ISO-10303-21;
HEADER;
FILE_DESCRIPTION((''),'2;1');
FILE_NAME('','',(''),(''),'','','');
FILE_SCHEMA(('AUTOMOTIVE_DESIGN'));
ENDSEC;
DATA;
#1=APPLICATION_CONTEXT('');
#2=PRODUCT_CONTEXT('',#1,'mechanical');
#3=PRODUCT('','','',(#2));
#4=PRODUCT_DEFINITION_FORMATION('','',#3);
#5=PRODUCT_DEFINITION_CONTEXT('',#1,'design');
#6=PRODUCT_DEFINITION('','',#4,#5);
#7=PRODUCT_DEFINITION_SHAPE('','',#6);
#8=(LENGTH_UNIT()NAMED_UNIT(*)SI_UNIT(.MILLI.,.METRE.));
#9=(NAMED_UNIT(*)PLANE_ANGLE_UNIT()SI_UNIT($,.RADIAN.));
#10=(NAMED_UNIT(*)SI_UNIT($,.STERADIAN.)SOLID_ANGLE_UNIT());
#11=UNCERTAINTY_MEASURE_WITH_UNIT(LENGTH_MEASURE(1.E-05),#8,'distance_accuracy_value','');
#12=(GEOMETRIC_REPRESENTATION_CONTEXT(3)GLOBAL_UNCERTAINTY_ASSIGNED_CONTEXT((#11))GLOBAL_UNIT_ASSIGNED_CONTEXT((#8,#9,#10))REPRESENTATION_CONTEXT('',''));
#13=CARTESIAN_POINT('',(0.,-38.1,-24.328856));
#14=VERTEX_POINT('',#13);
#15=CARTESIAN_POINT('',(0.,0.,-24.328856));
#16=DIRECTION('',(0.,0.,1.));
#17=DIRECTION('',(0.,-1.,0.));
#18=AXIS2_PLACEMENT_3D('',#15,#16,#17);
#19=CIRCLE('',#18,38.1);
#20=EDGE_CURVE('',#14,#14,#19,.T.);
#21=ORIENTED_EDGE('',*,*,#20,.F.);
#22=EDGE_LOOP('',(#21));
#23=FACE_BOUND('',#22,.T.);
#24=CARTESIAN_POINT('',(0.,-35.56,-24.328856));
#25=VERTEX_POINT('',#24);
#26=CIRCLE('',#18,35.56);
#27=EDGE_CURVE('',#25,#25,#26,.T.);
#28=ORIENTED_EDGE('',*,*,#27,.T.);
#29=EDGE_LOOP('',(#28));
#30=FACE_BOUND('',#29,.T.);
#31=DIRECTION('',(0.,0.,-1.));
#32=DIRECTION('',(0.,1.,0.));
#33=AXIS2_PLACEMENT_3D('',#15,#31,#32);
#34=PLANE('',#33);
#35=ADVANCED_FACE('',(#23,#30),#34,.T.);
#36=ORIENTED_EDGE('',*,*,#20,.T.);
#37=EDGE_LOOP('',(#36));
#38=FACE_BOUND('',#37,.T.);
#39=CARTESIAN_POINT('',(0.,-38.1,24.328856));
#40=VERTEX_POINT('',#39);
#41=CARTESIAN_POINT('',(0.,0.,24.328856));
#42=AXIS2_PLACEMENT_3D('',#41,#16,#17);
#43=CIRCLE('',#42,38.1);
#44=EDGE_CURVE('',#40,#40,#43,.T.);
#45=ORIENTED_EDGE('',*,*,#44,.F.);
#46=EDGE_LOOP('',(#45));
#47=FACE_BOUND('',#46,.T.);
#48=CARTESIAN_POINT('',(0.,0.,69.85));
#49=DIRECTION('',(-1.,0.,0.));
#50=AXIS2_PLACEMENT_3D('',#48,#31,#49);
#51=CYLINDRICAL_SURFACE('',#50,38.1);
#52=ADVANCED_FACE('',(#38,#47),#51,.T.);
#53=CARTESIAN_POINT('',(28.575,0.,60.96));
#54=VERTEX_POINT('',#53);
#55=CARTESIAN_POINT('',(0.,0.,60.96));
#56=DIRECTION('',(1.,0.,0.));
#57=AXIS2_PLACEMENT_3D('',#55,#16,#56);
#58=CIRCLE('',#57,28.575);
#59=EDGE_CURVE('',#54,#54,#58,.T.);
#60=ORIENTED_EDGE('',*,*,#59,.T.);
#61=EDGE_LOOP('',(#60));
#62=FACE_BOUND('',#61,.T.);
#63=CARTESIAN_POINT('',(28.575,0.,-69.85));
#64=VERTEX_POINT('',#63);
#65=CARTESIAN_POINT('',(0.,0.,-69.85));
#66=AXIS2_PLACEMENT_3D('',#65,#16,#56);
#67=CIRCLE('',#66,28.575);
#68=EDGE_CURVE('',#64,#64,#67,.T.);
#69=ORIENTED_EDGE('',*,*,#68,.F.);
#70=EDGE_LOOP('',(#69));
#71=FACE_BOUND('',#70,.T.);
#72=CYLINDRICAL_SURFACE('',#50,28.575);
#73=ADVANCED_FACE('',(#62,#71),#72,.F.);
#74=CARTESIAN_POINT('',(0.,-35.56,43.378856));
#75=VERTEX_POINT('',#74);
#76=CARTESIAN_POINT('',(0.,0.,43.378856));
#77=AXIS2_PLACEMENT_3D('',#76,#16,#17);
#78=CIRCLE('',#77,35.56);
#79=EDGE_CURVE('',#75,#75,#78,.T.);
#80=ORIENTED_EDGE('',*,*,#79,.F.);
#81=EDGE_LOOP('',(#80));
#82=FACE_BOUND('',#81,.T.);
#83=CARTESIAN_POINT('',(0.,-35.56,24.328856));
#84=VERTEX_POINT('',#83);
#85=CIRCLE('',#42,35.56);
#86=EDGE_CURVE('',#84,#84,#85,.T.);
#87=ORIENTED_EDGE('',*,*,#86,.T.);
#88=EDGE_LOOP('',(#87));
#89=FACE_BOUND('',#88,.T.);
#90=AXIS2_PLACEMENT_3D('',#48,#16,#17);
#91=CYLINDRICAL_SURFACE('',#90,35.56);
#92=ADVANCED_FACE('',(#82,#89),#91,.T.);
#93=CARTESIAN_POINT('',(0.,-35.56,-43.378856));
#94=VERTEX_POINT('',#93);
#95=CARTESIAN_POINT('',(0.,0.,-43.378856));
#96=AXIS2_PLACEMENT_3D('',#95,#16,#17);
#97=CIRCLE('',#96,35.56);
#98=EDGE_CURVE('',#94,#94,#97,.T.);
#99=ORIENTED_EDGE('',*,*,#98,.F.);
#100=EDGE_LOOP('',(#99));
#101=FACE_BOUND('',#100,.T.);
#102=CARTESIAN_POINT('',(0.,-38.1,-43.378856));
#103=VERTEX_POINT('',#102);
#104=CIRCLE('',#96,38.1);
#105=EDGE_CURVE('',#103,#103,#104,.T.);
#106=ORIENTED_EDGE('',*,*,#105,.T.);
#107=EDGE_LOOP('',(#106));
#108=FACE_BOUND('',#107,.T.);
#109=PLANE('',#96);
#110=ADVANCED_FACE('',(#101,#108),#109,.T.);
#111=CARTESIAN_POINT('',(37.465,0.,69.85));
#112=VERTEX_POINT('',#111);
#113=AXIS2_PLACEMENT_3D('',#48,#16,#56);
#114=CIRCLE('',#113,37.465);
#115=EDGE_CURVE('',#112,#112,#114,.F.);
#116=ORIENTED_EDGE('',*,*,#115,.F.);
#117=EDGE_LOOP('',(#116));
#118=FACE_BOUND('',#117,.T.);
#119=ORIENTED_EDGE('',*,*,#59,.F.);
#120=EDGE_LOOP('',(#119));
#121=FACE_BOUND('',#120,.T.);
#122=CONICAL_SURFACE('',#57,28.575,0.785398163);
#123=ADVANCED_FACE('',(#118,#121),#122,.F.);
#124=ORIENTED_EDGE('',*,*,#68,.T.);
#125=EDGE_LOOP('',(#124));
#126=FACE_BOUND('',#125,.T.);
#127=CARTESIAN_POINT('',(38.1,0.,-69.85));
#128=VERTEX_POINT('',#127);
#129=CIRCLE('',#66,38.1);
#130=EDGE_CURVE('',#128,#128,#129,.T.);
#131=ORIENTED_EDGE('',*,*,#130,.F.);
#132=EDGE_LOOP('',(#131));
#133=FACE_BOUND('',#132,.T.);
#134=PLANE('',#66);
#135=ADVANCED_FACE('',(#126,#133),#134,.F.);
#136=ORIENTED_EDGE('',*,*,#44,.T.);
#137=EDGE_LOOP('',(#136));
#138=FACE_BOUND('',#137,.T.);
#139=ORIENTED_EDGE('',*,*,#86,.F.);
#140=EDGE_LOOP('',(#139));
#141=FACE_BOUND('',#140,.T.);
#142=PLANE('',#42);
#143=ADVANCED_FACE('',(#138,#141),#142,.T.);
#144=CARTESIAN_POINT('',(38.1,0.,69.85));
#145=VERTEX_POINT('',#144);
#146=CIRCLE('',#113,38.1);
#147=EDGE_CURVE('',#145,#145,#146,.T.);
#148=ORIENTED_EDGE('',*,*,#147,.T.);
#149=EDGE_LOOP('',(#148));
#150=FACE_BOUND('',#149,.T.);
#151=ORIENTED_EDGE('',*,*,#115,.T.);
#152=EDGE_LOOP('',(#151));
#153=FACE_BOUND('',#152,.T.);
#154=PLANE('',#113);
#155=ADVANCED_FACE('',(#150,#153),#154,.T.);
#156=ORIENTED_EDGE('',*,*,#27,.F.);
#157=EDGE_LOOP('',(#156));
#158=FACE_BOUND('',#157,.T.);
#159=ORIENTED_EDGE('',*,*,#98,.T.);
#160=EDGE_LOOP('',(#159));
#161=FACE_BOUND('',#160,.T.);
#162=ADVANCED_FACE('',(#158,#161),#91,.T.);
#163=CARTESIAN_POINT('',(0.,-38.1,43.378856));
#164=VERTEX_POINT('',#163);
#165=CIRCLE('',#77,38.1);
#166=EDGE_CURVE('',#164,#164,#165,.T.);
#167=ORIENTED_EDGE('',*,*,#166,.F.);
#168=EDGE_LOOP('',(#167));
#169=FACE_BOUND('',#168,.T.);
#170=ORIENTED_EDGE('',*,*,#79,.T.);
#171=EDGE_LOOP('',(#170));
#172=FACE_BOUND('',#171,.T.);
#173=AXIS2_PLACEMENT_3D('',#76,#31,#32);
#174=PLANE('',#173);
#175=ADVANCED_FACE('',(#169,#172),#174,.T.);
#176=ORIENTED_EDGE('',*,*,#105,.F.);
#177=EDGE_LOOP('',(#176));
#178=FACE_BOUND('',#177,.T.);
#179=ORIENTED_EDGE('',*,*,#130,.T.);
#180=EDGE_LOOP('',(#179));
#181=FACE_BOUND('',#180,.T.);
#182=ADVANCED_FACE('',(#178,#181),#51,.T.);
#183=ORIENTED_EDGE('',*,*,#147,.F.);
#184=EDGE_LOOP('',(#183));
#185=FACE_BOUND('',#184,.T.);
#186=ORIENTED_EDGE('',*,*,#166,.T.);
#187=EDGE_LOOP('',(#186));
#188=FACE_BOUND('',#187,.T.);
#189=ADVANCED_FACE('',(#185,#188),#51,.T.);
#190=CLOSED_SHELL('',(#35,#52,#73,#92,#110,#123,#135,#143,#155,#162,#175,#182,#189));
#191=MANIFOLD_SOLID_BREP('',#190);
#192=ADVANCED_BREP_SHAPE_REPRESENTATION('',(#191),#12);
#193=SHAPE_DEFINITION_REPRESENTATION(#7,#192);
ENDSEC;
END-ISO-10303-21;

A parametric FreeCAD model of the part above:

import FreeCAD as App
import Part
import Sketcher
from FreeCAD import Vector
Q = App.Units.Quantity


def edges_at(feature, points):
    """Names of the edges that pass closest to the given points."""
    edges = feature.Shape.Edges
    near = lambda p: min(range(len(edges)), key=lambda i: edges[i].distToShape(Part.Vertex(*p))[0])
    return sorted({f"Edge{near(p) + 1}" for p in points})

doc = App.newDocument("Part")
body = doc.addObject("PartDesign::Body", "Body")

sketch1 = body.newObject("Sketcher::SketchObject", "Sketch")
sketch1.AttachmentSupport = (doc.getObject("XY_Plane"), [""])
sketch1.MapMode = "FlatFace"
sketch1.addGeometry([
    Part.Circle(Vector(0, 0, 0), Vector(0, 0, 1), 38),
    Part.Circle(Vector(0, 0, 0), Vector(0, 0, 1), 29),
], False)
sketch1.addConstraint([
    Sketcher.Constraint("Coincident", 0, 3, -1, 1),
    Sketcher.Constraint("Coincident", 1, 3, -1, 1),
    Sketcher.Constraint("Diameter", 0, Q("3 in")),
    Sketcher.Constraint("Diameter", 1, Q("2.25 in")),
])
pad1 = body.newObject("PartDesign::Pad", "Pad")
pad1.Profile = sketch1
pad1.Length = Q("5.5 in")
pad1.Midplane = True

sketch2 = body.newObject("Sketcher::SketchObject", "Sketch001")
sketch2.AttachmentSupport = (doc.getObject("YZ_Plane"), [""])
sketch2.MapMode = "FlatFace"
sketch2.addGeometry([
    Part.LineSegment(Vector(38.1, 43.4, 0), Vector(35.6, 43.4, 0)),
    Part.LineSegment(Vector(35.6, 43.4, 0), Vector(35.6, 24.3, 0)),
    Part.LineSegment(Vector(35.6, 24.3, 0), Vector(38.1, 24.3, 0)),
    Part.LineSegment(Vector(38.1, 24.3, 0), Vector(38.1, 43.4, 0)),
    Part.LineSegment(Vector(38.1, -24.3, 0), Vector(35.6, -24.3, 0)),
    Part.LineSegment(Vector(35.6, -24.3, 0), Vector(35.6, -43.4, 0)),
    Part.LineSegment(Vector(35.6, -43.4, 0), Vector(38.1, -43.4, 0)),
    Part.LineSegment(Vector(38.1, -43.4, 0), Vector(38.1, -24.3, 0)),
], False)
sketch2.addConstraint([
    Sketcher.Constraint("Coincident", 0, 2, 1, 1),
    Sketcher.Constraint("Coincident", 1, 2, 2, 1),
    Sketcher.Constraint("Coincident", 2, 2, 3, 1),
    Sketcher.Constraint("Coincident", 3, 2, 0, 1),
    Sketcher.Constraint("Coincident", 4, 2, 5, 1),
    Sketcher.Constraint("Coincident", 5, 2, 6, 1),
    Sketcher.Constraint("Coincident", 6, 2, 7, 1),
    Sketcher.Constraint("Coincident", 7, 2, 4, 1),
    Sketcher.Constraint("Horizontal", 0),
    Sketcher.Constraint("Vertical", 1),
    Sketcher.Constraint("Horizontal", 2),
    Sketcher.Constraint("Vertical", 3),
    Sketcher.Constraint("Horizontal", 4),
    Sketcher.Constraint("Vertical", 5),
    Sketcher.Constraint("Horizontal", 6),
    Sketcher.Constraint("Vertical", 7),
    Sketcher.Constraint("Symmetric", 1, 2, 4, 2, -1),
    Sketcher.Constraint("Symmetric", 3, 2, 6, 2, -1),
    Sketcher.Constraint("DistanceX", 0, 2, 0, 1, Q("0.1 in")),
    Sketcher.Constraint("DistanceY", 1, 2, 1, 1, Q("0.75 in")),
    Sketcher.Constraint("DistanceX", -1, 1, 0, 2, Q("1.4 in")),
    Sketcher.Constraint("DistanceY", -1, 1, 0, 2, Q("43.378856 mm")),
])
groove = body.newObject("PartDesign::Groove", "Groove")
groove.Profile = sketch2
groove.ReferenceAxis = (sketch2, ["V_Axis"])
groove.Angle = 360
doc.recompute()

chamfer = body.newObject("PartDesign::Chamfer", "Chamfer")
chamfer.Base = (groove, edges_at(groove, [(-28.575, 0, 69.85)]))
chamfer.Size = Q("0.35 in")

doc.recompute()
